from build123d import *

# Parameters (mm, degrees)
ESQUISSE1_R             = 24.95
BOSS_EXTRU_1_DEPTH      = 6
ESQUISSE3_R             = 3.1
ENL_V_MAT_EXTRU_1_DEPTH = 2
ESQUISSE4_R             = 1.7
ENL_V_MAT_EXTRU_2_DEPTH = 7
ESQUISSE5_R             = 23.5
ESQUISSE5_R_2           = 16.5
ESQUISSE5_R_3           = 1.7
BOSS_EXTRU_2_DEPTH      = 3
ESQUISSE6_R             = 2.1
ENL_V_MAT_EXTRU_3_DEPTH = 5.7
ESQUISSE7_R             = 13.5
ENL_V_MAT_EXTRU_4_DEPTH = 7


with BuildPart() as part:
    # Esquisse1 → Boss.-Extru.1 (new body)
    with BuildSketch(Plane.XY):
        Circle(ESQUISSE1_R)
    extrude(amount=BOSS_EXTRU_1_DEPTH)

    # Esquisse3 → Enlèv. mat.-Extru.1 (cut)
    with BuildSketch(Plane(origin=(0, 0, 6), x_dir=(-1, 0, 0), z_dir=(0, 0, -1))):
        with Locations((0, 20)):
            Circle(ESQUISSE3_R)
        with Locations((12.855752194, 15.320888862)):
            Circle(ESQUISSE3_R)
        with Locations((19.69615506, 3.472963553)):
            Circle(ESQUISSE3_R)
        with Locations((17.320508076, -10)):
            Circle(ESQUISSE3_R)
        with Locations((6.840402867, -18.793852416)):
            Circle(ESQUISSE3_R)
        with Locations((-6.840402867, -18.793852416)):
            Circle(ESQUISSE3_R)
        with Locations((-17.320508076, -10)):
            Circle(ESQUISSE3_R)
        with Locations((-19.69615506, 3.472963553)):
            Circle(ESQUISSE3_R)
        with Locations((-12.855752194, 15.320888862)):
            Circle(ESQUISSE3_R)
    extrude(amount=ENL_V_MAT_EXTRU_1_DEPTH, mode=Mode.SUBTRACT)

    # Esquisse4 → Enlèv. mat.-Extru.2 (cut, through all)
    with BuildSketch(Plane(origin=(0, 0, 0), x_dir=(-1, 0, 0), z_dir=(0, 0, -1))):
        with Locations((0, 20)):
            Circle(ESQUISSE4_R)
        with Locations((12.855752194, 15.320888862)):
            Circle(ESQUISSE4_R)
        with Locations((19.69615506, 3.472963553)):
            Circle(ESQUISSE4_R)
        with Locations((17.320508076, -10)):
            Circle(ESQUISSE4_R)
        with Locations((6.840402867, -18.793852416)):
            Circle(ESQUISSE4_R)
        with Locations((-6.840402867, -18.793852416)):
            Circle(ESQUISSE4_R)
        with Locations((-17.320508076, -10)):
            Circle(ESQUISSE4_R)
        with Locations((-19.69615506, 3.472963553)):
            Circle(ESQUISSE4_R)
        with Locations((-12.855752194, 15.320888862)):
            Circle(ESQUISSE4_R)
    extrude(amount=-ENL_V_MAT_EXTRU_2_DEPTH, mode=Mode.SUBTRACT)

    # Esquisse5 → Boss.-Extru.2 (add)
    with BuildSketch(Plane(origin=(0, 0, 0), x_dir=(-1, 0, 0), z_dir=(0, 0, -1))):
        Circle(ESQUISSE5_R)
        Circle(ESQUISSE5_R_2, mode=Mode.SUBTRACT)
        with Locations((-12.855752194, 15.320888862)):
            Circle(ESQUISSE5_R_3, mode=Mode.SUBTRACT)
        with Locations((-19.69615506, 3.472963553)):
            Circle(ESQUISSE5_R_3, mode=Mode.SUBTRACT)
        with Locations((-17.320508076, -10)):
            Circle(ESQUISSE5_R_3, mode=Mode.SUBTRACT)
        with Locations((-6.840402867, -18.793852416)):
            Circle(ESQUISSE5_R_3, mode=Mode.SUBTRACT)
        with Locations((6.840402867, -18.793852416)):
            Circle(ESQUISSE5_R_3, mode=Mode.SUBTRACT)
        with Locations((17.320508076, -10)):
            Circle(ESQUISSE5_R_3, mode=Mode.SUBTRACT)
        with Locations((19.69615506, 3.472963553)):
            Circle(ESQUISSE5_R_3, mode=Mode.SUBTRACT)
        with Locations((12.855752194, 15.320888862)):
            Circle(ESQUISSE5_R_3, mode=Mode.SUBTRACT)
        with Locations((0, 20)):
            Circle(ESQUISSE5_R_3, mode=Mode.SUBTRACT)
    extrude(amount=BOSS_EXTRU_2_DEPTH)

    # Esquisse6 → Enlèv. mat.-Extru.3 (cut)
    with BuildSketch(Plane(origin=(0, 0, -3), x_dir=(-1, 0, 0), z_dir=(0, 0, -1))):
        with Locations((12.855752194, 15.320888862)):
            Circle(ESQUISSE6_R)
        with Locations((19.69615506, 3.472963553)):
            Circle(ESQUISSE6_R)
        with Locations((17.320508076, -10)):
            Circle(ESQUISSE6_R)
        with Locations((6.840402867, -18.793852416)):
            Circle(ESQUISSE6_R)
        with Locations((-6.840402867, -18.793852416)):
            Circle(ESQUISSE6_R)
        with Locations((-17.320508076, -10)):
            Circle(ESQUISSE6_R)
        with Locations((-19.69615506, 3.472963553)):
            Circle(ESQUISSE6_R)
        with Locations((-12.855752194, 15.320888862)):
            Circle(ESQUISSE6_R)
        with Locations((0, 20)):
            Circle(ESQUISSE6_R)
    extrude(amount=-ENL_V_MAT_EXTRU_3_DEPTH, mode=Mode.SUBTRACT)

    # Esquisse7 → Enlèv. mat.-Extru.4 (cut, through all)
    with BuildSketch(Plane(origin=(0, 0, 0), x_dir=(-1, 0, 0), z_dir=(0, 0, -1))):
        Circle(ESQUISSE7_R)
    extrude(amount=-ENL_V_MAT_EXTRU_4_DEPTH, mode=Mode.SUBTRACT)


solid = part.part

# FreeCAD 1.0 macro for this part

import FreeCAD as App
import Part
import Sketcher

V = App.Vector

doc = App.newDocument("Part")
params = doc.addObject("Spreadsheet::Sheet", "Params")
for row, (alias, value) in enumerate([
    ("sketch1_diameter", "49.9 mm"),
    ("pad1_length", "6 mm"),
    ("sketch2_diameter", "6.2 mm"),
    ("pocket1_length", "2 mm"),
    ("sketch3_diameter", "3.4 mm"),
    ("sketch4_diameter", "47 mm"),
    ("sketch4_diameter2", "33 mm"),
    ("sketch4_diameter3", "3.4 mm"),
    ("pad2_length", "3 mm"),
    ("sketch5_diameter", "4.2 mm"),
    ("pocket3_length", "5.7 mm"),
    ("sketch6_diameter", "27 mm"),
], start=1):
    params.set(f"A{row}", alias)
    params.set(f"B{row}", "=" + value)
    params.setAlias(f"B{row}", alias)

body = doc.addObject("PartDesign::Body", "Body")

sketch1 = body.newObject("Sketcher::SketchObject", "Sketch")
sketch1.AttachmentSupport = (doc.getObject("XY_Plane"), [""])
sketch1.MapMode = "FlatFace"
sketch1.addGeometry(Part.Circle(V(0, 0, 0), V(0, 0, 1), 25), False)
sketch1.addConstraint(Sketcher.Constraint("Coincident", 0, 3, -1, 1))
sketch1.addConstraint(Sketcher.Constraint("Diameter", 0, 49.9))
sketch1.setExpression("Constraints[1]", "Params.sketch1_diameter")
pad1 = body.newObject("PartDesign::Pad", "Pad")
pad1.Profile = sketch1
pad1.setExpression("Length", "Params.pad1_length")

sketch2 = body.newObject("Sketcher::SketchObject", "Sketch001")
sketch2.AttachmentSupport = (doc.getObject("XY_Plane"), [""])
sketch2.MapMode = "FlatFace"
sketch2.AttachmentOffset = App.Placement(V(0, 0, 6), App.Rotation())
sketch2.addGeometry(Part.Circle(V(0, 20, 0), V(0, 0, 1), 3.1), False)
sketch2.addGeometry(Part.Circle(V(-12.9, 15.3, 0), V(0, 0, 1), 3.1), False)
sketch2.addGeometry(Part.Circle(V(-19.7, 3.5, 0), V(0, 0, 1), 3.1), False)
sketch2.addGeometry(Part.Circle(V(-17.3, -10, 0), V(0, 0, 1), 3.1), False)
sketch2.addGeometry(Part.Circle(V(-6.8, -18.8, 0), V(0, 0, 1), 3.1), False)
sketch2.addGeometry(Part.Circle(V(6.8, -18.8, 0), V(0, 0, 1), 3.1), False)
sketch2.addGeometry(Part.Circle(V(17.3, -10, 0), V(0, 0, 1), 3.1), False)
sketch2.addGeometry(Part.Circle(V(19.7, 3.5, 0), V(0, 0, 1), 3.1), False)
sketch2.addGeometry(Part.Circle(V(12.9, 15.3, 0), V(0, 0, 1), 3.1), False)
sketch2.addConstraint(Sketcher.Constraint("Equal", 0, 1))
sketch2.addConstraint(Sketcher.Constraint("Equal", 1, 2))
sketch2.addConstraint(Sketcher.Constraint("Equal", 2, 3))
sketch2.addConstraint(Sketcher.Constraint("Equal", 3, 4))
sketch2.addConstraint(Sketcher.Constraint("Equal", 4, 5))
sketch2.addConstraint(Sketcher.Constraint("Equal", 5, 6))
sketch2.addConstraint(Sketcher.Constraint("Equal", 6, 7))
sketch2.addConstraint(Sketcher.Constraint("Equal", 7, 8))
sketch2.addConstraint(Sketcher.Constraint("Symmetric", 4, 3, 5, 3, -2))
sketch2.addConstraint(Sketcher.Constraint("Symmetric", 3, 3, 6, 3, -2))
sketch2.addConstraint(Sketcher.Constraint("Symmetric", 2, 3, 7, 3, -2))
sketch2.addConstraint(Sketcher.Constraint("Symmetric", 1, 3, 8, 3, -2))
sketch2.addConstraint(Sketcher.Constraint("PointOnObject", 0, 3, -2))
sketch2.addConstraint(Sketcher.Constraint("Diameter", 0, 6.2))
sketch2.addConstraint(Sketcher.Constraint("DistanceY", -1, 1, 0, 3, 20.0))
sketch2.addConstraint(Sketcher.Constraint("DistanceY", 3, 3, -1, 1, 10.0))
sketch2.addConstraint(Sketcher.Constraint("DistanceY", -1, 1, 1, 3, 15.320889))
sketch2.addConstraint(Sketcher.Constraint("DistanceX", 3, 3, -1, 1, 17.320508))
sketch2.addConstraint(Sketcher.Constraint("DistanceX", 1, 3, 4, 3, 6.015349))
sketch2.addConstraint(Sketcher.Constraint("DistanceY", 4, 3, 1, 3, 34.114741))
sketch2.addConstraint(Sketcher.Constraint("DistanceX", 3, 3, 5, 3, 24.160911))
sketch2.addConstraint(Sketcher.Constraint("DistanceX", 2, 3, -1, 1, 19.696155))
sketch2.addConstraint(Sketcher.Constraint("DistanceY", -1, 1, 2, 3, 3.472964))
sketch2.setExpression("Constraints[13]", "Params.sketch2_diameter")
pocket1 = body.newObject("PartDesign::Pocket", "Pocket")
pocket1.Profile = sketch2
pocket1.setExpression("Length", "Params.pocket1_length")

sketch3 = body.newObject("Sketcher::SketchObject", "Sketch002")
sketch3.AttachmentSupport = (doc.getObject("XY_Plane"), [""])
sketch3.MapMode = "FlatFace"
sketch3.addGeometry(Part.Circle(V(0, 20, 0), V(0, 0, 1), 1.7), False)
sketch3.addGeometry(Part.Circle(V(-12.9, 15.3, 0), V(0, 0, 1), 1.7), False)
sketch3.addGeometry(Part.Circle(V(-19.7, 3.5, 0), V(0, 0, 1), 1.7), False)
sketch3.addGeometry(Part.Circle(V(-17.3, -10, 0), V(0, 0, 1), 1.7), False)
sketch3.addGeometry(Part.Circle(V(-6.8, -18.8, 0), V(0, 0, 1), 1.7), False)
sketch3.addGeometry(Part.Circle(V(6.8, -18.8, 0), V(0, 0, 1), 1.7), False)
sketch3.addGeometry(Part.Circle(V(17.3, -10, 0), V(0, 0, 1), 1.7), False)
sketch3.addGeometry(Part.Circle(V(19.7, 3.5, 0), V(0, 0, 1), 1.7), False)
sketch3.addGeometry(Part.Circle(V(12.9, 15.3, 0), V(0, 0, 1), 1.7), False)
sketch3.addConstraint(Sketcher.Constraint("Equal", 0, 1))
sketch3.addConstraint(Sketcher.Constraint("Equal", 1, 2))
sketch3.addConstraint(Sketcher.Constraint("Equal", 2, 3))
sketch3.addConstraint(Sketcher.Constraint("Equal", 3, 4))
sketch3.addConstraint(Sketcher.Constraint("Equal", 4, 5))
sketch3.addConstraint(Sketcher.Constraint("Equal", 5, 6))
sketch3.addConstraint(Sketcher.Constraint("Equal", 6, 7))
sketch3.addConstraint(Sketcher.Constraint("Equal", 7, 8))
sketch3.addConstraint(Sketcher.Constraint("Symmetric", 4, 3, 5, 3, -2))
sketch3.addConstraint(Sketcher.Constraint("Symmetric", 3, 3, 6, 3, -2))
sketch3.addConstraint(Sketcher.Constraint("Symmetric", 2, 3, 7, 3, -2))
sketch3.addConstraint(Sketcher.Constraint("Symmetric", 1, 3, 8, 3, -2))
sketch3.addConstraint(Sketcher.Constraint("PointOnObject", 0, 3, -2))
sketch3.addConstraint(Sketcher.Constraint("Diameter", 0, 3.4))
sketch3.addConstraint(Sketcher.Constraint("DistanceY", -1, 1, 0, 3, 20.0))
sketch3.addConstraint(Sketcher.Constraint("DistanceY", 3, 3, -1, 1, 10.0))
sketch3.addConstraint(Sketcher.Constraint("DistanceY", -1, 1, 1, 3, 15.320889))
sketch3.addConstraint(Sketcher.Constraint("DistanceX", 3, 3, -1, 1, 17.320508))
sketch3.addConstraint(Sketcher.Constraint("DistanceX", 1, 3, 4, 3, 6.015349))
sketch3.addConstraint(Sketcher.Constraint("DistanceY", 4, 3, 1, 3, 34.114741))
sketch3.addConstraint(Sketcher.Constraint("DistanceX", 3, 3, 5, 3, 24.160911))
sketch3.addConstraint(Sketcher.Constraint("DistanceX", 2, 3, -1, 1, 19.696155))
sketch3.addConstraint(Sketcher.Constraint("DistanceY", -1, 1, 2, 3, 3.472964))
sketch3.setExpression("Constraints[13]", "Params.sketch3_diameter")
pocket2 = body.newObject("PartDesign::Pocket", "Pocket001")
pocket2.Profile = sketch3
pocket2.Type = "ThroughAll"
pocket2.Reversed = True

sketch4 = body.newObject("Sketcher::SketchObject", "Sketch003")
sketch4.AttachmentSupport = (doc.getObject("XY_Plane"), [""])
sketch4.MapMode = "FlatFace"
sketch4.addGeometry(Part.Circle(V(0, 0, 0), V(0, 0, 1), 23.5), False)
sketch4.addGeometry(Part.Circle(V(17.3, -10, 0), V(0, 0, 1), 1.7), False)
sketch4.addGeometry(Part.Circle(V(6.8, -18.8, 0), V(0, 0, 1), 1.7), False)
sketch4.addGeometry(Part.Circle(V(0, 0, 0), V(0, 0, 1), 16.5), False)
sketch4.addGeometry(Part.Circle(V(-6.8, -18.8, 0), V(0, 0, 1), 1.7), False)
sketch4.addGeometry(Part.Circle(V(-17.3, -10, 0), V(0, 0, 1), 1.7), False)
sketch4.addGeometry(Part.Circle(V(19.7, 3.5, 0), V(0, 0, 1), 1.7), False)
sketch4.addGeometry(Part.Circle(V(12.9, 15.3, 0), V(0, 0, 1), 1.7), False)
sketch4.addGeometry(Part.Circle(V(0, 20, 0), V(0, 0, 1), 1.7), False)
sketch4.addGeometry(Part.Circle(V(-19.7, 3.5, 0), V(0, 0, 1), 1.7), False)
sketch4.addGeometry(Part.Circle(V(-12.9, 15.3, 0), V(0, 0, 1), 1.7), False)
sketch4.addConstraint(Sketcher.Constraint("Coincident", 0, 3, -1, 1))
sketch4.addConstraint(Sketcher.Constraint("Coincident", 3, 3, -1, 1))
sketch4.addConstraint(Sketcher.Constraint("Equal", 1, 2))
sketch4.addConstraint(Sketcher.Constraint("Equal", 2, 4))
sketch4.addConstraint(Sketcher.Constraint("Equal", 4, 5))
sketch4.addConstraint(Sketcher.Constraint("Equal", 5, 6))
sketch4.addConstraint(Sketcher.Constraint("Equal", 6, 7))
sketch4.addConstraint(Sketcher.Constraint("Equal", 7, 8))
sketch4.addConstraint(Sketcher.Constraint("Equal", 8, 9))
sketch4.addConstraint(Sketcher.Constraint("Equal", 9, 10))
sketch4.addConstraint(Sketcher.Constraint("Symmetric", 2, 3, 4, 3, -2))
sketch4.addConstraint(Sketcher.Constraint("Symmetric", 1, 3, 5, 3, -2))
sketch4.addConstraint(Sketcher.Constraint("Symmetric", 6, 3, 9, 3, -2))
sketch4.addConstraint(Sketcher.Constraint("Symmetric", 7, 3, 10, 3, -2))
sketch4.addConstraint(Sketcher.Constraint("PointOnObject", 8, 3, -2))
sketch4.addConstraint(Sketcher.Constraint("Diameter", 0, 47.0))
sketch4.addConstraint(Sketcher.Constraint("Diameter", 3, 33.0))
sketch4.addConstraint(Sketcher.Constraint("Diameter", 1, 3.4))
sketch4.addConstraint(Sketcher.Constraint("DistanceY", 1, 3, -1, 1, 10.0))
sketch4.addConstraint(Sketcher.Constraint("DistanceY", -1, 1, 8, 3, 20.0))
sketch4.addConstraint(Sketcher.Constraint("DistanceX", -1, 1, 1, 3, 17.320508))
sketch4.addConstraint(Sketcher.Constraint("DistanceY", -1, 1, 7, 3, 15.320889))
sketch4.addConstraint(Sketcher.Constraint("DistanceX", 4, 3, 1, 3, 24.160911))
sketch4.addConstraint(Sketcher.Constraint("DistanceX", 2, 3, 7, 3, 6.015349))
sketch4.addConstraint(Sketcher.Constraint("DistanceY", 2, 3, 7, 3, 34.114741))
sketch4.addConstraint(Sketcher.Constraint("DistanceX", -1, 1, 6, 3, 19.696155))
sketch4.addConstraint(Sketcher.Constraint("DistanceY", -1, 1, 6, 3, 3.472964))
sketch4.setExpression("Constraints[15]", "Params.sketch4_diameter")
sketch4.setExpression("Constraints[16]", "Params.sketch4_diameter2")
sketch4.setExpression("Constraints[17]", "Params.sketch4_diameter3")
pad2 = body.newObject("PartDesign::Pad", "Pad001")
pad2.Profile = sketch4
pad2.setExpression("Length", "Params.pad2_length")
pad2.Reversed = True

sketch5 = body.newObject("Sketcher::SketchObject", "Sketch004")
sketch5.AttachmentSupport = (doc.getObject("XY_Plane"), [""])
sketch5.MapMode = "FlatFace"
sketch5.AttachmentOffset = App.Placement(V(0, 0, -3), App.Rotation())
sketch5.addGeometry(Part.Circle(V(-12.9, 15.3, 0), V(0, 0, 1), 2.1), False)
sketch5.addGeometry(Part.Circle(V(-19.7, 3.5, 0), V(0, 0, 1), 2.1), False)
sketch5.addGeometry(Part.Circle(V(-17.3, -10, 0), V(0, 0, 1), 2.1), False)
sketch5.addGeometry(Part.Circle(V(-6.8, -18.8, 0), V(0, 0, 1), 2.1), False)
sketch5.addGeometry(Part.Circle(V(6.8, -18.8, 0), V(0, 0, 1), 2.1), False)
sketch5.addGeometry(Part.Circle(V(17.3, -10, 0), V(0, 0, 1), 2.1), False)
sketch5.addGeometry(Part.Circle(V(19.7, 3.5, 0), V(0, 0, 1), 2.1), False)
sketch5.addGeometry(Part.Circle(V(12.9, 15.3, 0), V(0, 0, 1), 2.1), False)
sketch5.addGeometry(Part.Circle(V(0, 20, 0), V(0, 0, 1), 2.1), False)
sketch5.addConstraint(Sketcher.Constraint("Equal", 0, 1))
sketch5.addConstraint(Sketcher.Constraint("Equal", 1, 2))
sketch5.addConstraint(Sketcher.Constraint("Equal", 2, 3))
sketch5.addConstraint(Sketcher.Constraint("Equal", 3, 4))
sketch5.addConstraint(Sketcher.Constraint("Equal", 4, 5))
sketch5.addConstraint(Sketcher.Constraint("Equal", 5, 6))
sketch5.addConstraint(Sketcher.Constraint("Equal", 6, 7))
sketch5.addConstraint(Sketcher.Constraint("Equal", 7, 8))
sketch5.addConstraint(Sketcher.Constraint("Symmetric", 3, 3, 4, 3, -2))
sketch5.addConstraint(Sketcher.Constraint("Symmetric", 2, 3, 5, 3, -2))
sketch5.addConstraint(Sketcher.Constraint("Symmetric", 1, 3, 6, 3, -2))
sketch5.addConstraint(Sketcher.Constraint("Symmetric", 0, 3, 7, 3, -2))
sketch5.addConstraint(Sketcher.Constraint("PointOnObject", 8, 3, -2))
sketch5.addConstraint(Sketcher.Constraint("Diameter", 0, 4.2))
sketch5.addConstraint(Sketcher.Constraint("DistanceY", 2, 3, -1, 1, 10.0))
sketch5.addConstraint(Sketcher.Constraint("DistanceY", -1, 1, 8, 3, 20.0))
sketch5.addConstraint(Sketcher.Constraint("DistanceY", -1, 1, 0, 3, 15.320889))
sketch5.addConstraint(Sketcher.Constraint("DistanceX", 2, 3, -1, 1, 17.320508))
sketch5.addConstraint(Sketcher.Constraint("DistanceX", 0, 3, 3, 3, 6.015349))
sketch5.addConstraint(Sketcher.Constraint("DistanceY", 3, 3, 0, 3, 34.114741))
sketch5.addConstraint(Sketcher.Constraint("DistanceX", 2, 3, 4, 3, 24.160911))
sketch5.addConstraint(Sketcher.Constraint("DistanceX", 1, 3, 6, 3, 39.39231))
sketch5.addConstraint(Sketcher.Constraint("DistanceY", -1, 1, 1, 3, 3.472964))
sketch5.setExpression("Constraints[13]", "Params.sketch5_diameter")
pocket3 = body.newObject("PartDesign::Pocket", "Pocket002")
pocket3.Profile = sketch5
pocket3.setExpression("Length", "Params.pocket3_length")
pocket3.Reversed = True

sketch6 = body.newObject("Sketcher::SketchObject", "Sketch005")
sketch6.AttachmentSupport = (doc.getObject("XY_Plane"), [""])
sketch6.MapMode = "FlatFace"
sketch6.addGeometry(Part.Circle(V(0, 0, 0), V(0, 0, 1), 14), False)
sketch6.addConstraint(Sketcher.Constraint("Coincident", 0, 3, -1, 1))
sketch6.addConstraint(Sketcher.Constraint("Diameter", 0, 27.0))
sketch6.setExpression("Constraints[1]", "Params.sketch6_diameter")
pocket4 = body.newObject("PartDesign::Pocket", "Pocket003")
pocket4.Profile = sketch6
pocket4.Type = "ThroughAll"
pocket4.Reversed = True

doc.recompute()
